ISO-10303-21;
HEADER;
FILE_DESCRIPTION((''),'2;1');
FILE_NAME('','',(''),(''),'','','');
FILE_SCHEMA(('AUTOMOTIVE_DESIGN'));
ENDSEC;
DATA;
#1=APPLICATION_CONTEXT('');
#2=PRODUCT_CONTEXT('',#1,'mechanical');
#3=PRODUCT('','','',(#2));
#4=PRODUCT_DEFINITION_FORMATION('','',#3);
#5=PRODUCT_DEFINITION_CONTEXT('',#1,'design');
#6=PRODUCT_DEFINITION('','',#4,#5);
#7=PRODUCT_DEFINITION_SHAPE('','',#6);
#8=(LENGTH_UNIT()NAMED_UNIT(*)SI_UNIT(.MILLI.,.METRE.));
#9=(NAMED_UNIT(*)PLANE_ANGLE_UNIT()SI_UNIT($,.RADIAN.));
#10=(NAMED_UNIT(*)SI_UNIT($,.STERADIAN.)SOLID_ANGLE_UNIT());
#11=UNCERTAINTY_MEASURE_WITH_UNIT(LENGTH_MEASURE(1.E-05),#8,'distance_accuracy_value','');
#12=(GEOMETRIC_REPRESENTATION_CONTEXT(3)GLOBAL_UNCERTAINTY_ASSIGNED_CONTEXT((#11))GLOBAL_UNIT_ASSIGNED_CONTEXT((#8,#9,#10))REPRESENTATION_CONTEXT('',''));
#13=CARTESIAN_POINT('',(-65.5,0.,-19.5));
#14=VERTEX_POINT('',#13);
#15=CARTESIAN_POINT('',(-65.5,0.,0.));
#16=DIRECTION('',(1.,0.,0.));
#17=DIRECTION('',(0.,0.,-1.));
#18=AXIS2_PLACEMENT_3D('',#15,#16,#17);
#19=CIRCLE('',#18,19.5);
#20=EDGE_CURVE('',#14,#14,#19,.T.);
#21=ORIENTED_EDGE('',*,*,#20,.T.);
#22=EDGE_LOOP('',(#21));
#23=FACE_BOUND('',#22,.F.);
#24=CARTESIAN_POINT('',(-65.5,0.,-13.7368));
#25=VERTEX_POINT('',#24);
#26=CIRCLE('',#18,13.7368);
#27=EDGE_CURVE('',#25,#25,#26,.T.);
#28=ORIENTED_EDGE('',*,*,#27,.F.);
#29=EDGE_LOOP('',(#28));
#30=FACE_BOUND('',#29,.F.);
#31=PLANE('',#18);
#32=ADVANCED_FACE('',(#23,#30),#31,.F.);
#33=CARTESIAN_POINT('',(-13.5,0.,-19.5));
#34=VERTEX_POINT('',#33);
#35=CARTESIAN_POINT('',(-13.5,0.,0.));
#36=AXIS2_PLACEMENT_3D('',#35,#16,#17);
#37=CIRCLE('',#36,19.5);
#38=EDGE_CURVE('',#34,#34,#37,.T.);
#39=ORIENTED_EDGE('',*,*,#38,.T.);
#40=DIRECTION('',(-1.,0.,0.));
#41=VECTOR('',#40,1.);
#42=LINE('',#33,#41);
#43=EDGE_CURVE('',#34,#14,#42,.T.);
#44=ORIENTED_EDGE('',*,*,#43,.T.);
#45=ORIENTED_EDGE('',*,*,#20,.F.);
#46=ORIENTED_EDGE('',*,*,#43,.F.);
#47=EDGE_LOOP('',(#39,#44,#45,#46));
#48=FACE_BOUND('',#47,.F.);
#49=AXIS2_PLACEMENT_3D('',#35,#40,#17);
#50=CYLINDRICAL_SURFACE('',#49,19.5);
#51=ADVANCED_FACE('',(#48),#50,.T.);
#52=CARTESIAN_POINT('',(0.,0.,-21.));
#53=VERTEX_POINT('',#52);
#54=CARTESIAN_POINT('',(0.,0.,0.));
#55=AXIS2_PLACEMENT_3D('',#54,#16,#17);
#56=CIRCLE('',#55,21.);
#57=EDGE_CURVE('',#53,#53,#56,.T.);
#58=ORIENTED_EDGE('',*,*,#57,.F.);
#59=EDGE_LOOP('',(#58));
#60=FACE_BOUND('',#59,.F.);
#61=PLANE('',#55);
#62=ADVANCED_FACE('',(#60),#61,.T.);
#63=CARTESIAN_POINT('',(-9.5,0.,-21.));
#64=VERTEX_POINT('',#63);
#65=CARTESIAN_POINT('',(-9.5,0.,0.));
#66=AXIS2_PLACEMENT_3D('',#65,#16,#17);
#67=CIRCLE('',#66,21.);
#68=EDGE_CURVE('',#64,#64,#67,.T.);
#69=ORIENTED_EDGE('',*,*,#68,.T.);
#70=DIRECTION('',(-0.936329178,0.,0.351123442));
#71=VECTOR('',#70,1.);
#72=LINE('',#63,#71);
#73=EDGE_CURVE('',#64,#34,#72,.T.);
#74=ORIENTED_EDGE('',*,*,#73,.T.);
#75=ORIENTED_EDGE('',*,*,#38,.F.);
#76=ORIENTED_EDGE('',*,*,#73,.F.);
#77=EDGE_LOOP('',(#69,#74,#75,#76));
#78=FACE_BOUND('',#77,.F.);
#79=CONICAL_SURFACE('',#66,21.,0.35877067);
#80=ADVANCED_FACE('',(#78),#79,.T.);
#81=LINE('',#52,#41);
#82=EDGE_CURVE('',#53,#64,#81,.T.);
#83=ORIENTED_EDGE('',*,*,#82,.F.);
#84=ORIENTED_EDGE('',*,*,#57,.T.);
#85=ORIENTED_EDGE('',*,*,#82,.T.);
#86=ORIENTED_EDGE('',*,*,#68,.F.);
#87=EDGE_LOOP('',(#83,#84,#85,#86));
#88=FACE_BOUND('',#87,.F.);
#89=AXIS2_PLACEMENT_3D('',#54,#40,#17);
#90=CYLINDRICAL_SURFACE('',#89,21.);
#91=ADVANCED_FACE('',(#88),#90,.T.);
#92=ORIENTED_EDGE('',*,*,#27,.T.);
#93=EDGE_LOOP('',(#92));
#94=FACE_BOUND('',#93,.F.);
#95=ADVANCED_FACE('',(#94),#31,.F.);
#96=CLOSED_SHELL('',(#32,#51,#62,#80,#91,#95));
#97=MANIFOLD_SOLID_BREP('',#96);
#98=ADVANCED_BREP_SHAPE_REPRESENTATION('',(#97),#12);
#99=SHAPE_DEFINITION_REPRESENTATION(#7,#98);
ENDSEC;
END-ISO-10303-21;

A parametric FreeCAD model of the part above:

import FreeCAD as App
import Part
import Sketcher
from FreeCAD import Vector

doc = App.newDocument("Part")
body = doc.addObject("PartDesign::Body", "Body")

sketch1 = body.newObject("Sketcher::SketchObject", "Sketch")
sketch1.AttachmentSupport = (doc.getObject("XZ_Plane"), [""])
sketch1.MapMode = "FlatFace"
sketch1.addGeometry(Part.LineSegment(Vector(-65.5, 0, 0), Vector(0, 0, 0)), False)
sketch1.addGeometry(Part.LineSegment(Vector(0, 0, 0), Vector(0, -21, 0)), False)
sketch1.addGeometry(Part.LineSegment(Vector(0, -21, 0), Vector(-9.5, -21, 0)), False)
sketch1.addGeometry(Part.LineSegment(Vector(-9.5, -21, 0), Vector(-13.5, -19.5, 0)), False)
sketch1.addGeometry(Part.LineSegment(Vector(-13.5, -19.5, 0), Vector(-65.5, -19.5, 0)), False)
sketch1.addGeometry(Part.LineSegment(Vector(-65.5, -19.5, 0), Vector(-65.5, 0, 0)), False)
sketch1.addConstraint(Sketcher.Constraint("Coincident", 0, 2, 1, 1))
sketch1.addConstraint(Sketcher.Constraint("Coincident", 1, 2, 2, 1))
sketch1.addConstraint(Sketcher.Constraint("Coincident", 2, 2, 3, 1))
sketch1.addConstraint(Sketcher.Constraint("Coincident", 3, 2, 4, 1))
sketch1.addConstraint(Sketcher.Constraint("Coincident", 4, 2, 5, 1))
sketch1.addConstraint(Sketcher.Constraint("Coincident", 5, 2, 0, 1))
sketch1.addConstraint(Sketcher.Constraint("Horizontal", 0))
sketch1.addConstraint(Sketcher.Constraint("Vertical", 1))
sketch1.addConstraint(Sketcher.Constraint("Horizontal", 2))
sketch1.addConstraint(Sketcher.Constraint("Horizontal", 4))
sketch1.addConstraint(Sketcher.Constraint("Vertical", 5))
sketch1.addConstraint(Sketcher.Constraint("Coincident", 0, 2, -1, 1))
sketch1.addConstraint(Sketcher.Constraint("DistanceY", 1, 2, 1, 1, 21.0))
sketch1.addConstraint(Sketcher.Constraint("DistanceX", 0, 1, 0, 2, 65.5))
sketch1.addConstraint(Sketcher.Constraint("DistanceX", 2, 2, 2, 1, 9.5))
sketch1.addConstraint(Sketcher.Constraint("DistanceY", 5, 1, 5, 2, 19.5))
sketch1.addConstraint(Sketcher.Constraint("DistanceX", 3, 2, -1, 1, 13.5))
revolution = body.newObject("PartDesign::Revolution", "Revolution")
revolution.Profile = sketch1
revolution.ReferenceAxis = (sketch1, ["H_Axis"])
revolution.Angle = 360

doc.recompute()
